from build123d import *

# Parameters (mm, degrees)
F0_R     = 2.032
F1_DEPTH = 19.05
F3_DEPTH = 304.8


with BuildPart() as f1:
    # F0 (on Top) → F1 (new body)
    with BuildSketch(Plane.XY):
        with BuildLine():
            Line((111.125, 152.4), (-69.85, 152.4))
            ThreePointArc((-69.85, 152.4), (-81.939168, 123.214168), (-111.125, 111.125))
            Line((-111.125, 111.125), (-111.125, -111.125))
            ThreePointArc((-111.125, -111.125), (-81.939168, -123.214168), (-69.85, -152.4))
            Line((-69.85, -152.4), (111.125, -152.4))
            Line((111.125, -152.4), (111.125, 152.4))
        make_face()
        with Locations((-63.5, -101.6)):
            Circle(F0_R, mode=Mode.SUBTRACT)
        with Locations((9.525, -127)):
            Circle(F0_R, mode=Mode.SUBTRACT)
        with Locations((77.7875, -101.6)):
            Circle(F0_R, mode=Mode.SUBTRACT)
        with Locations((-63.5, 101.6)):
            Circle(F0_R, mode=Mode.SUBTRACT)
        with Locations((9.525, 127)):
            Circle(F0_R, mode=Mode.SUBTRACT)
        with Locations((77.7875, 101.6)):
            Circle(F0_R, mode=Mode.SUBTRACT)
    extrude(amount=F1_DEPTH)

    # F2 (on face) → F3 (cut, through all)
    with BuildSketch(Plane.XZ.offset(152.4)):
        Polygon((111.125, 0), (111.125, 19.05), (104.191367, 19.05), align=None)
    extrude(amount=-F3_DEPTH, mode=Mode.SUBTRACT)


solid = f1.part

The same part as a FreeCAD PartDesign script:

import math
import FreeCAD as App
import Part
import Sketcher
Q = App.Units.Quantity


def add_polygon(sketch, points):
    """Adds a closed chain of lines whose ends are joined by coincident constraints."""
    first, n = sketch.GeometryCount, len(points)
    for a, b in zip(points, points[1:] + points[:1]):
        sketch.addGeometry(Part.LineSegment(App.Vector(*a, 0), App.Vector(*b, 0)), False)
    for i in range(n):
        sketch.addConstraint(Sketcher.Constraint("Coincident", first + i, 2, first + (i + 1) % n, 1))

doc = App.newDocument("Part")
body = doc.addObject("PartDesign::Body", "Body")

sketch1 = body.newObject("Sketcher::SketchObject", "Sketch")
sketch1.AttachmentSupport = (doc.getObject("XY_Plane"), [""])
sketch1.MapMode = "FlatFace"
sketch1.addGeometry([
    Part.LineSegment(App.Vector(111.1, 152.4, 0), App.Vector(-69.8, 152.4, 0)),
    Part.ArcOfCircle(Part.Circle(App.Vector(-111.1, 152.4, 0), App.Vector(0, 0, 1), 41.3), math.radians(-90), math.radians(0)),
    Part.LineSegment(App.Vector(-111.1, 111.1, 0), App.Vector(-111.1, -111.1, 0)),
    Part.ArcOfCircle(Part.Circle(App.Vector(-111.1, -152.4, 0), App.Vector(0, 0, 1), 41.3), math.radians(0), math.radians(90)),
    Part.LineSegment(App.Vector(-69.8, -152.4, 0), App.Vector(111.1, -152.4, 0)),
    Part.LineSegment(App.Vector(111.1, -152.4, 0), App.Vector(111.1, 152.4, 0)),
    Part.Circle(App.Vector(-63.5, -101.6, 0), App.Vector(0, 0, 1), 2),
    Part.Circle(App.Vector(9.5, -127, 0), App.Vector(0, 0, 1), 2),
    Part.Circle(App.Vector(77.8, -101.6, 0), App.Vector(0, 0, 1), 2),
    Part.Circle(App.Vector(-63.5, 101.6, 0), App.Vector(0, 0, 1), 2),
    Part.Circle(App.Vector(9.5, 127, 0), App.Vector(0, 0, 1), 2),
    Part.Circle(App.Vector(77.8, 101.6, 0), App.Vector(0, 0, 1), 2),
], False)
sketch1.addConstraint([
    Sketcher.Constraint("Coincident", 0, 2, 1, 2),
    Sketcher.Constraint("Coincident", 1, 1, 2, 1),
    Sketcher.Constraint("Coincident", 2, 2, 3, 2),
    Sketcher.Constraint("Coincident", 3, 1, 4, 1),
    Sketcher.Constraint("Coincident", 4, 2, 5, 1),
    Sketcher.Constraint("Coincident", 5, 2, 0, 1),
    Sketcher.Constraint("Horizontal", 0),
    Sketcher.Constraint("Vertical", 2),
    Sketcher.Constraint("Horizontal", 4),
    Sketcher.Constraint("Vertical", 5),
    Sketcher.Constraint("Equal", 1, 3),
    Sketcher.Constraint("Equal", 6, 7),
    Sketcher.Constraint("Equal", 7, 8),
    Sketcher.Constraint("Equal", 8, 9),
    Sketcher.Constraint("Equal", 9, 10),
    Sketcher.Constraint("Equal", 10, 11),
    Sketcher.Constraint("Symmetric", 1, 3, 3, 3, -1),
    Sketcher.Constraint("Symmetric", 6, 3, 9, 3, -1),
    Sketcher.Constraint("Symmetric", 7, 3, 10, 3, -1),
    Sketcher.Constraint("Symmetric", 8, 3, 11, 3, -1),
    Sketcher.Constraint("Horizontal", 6, 3, 8, 3),
    Sketcher.Constraint("Horizontal", 1, 3, 0, 2),
    Sketcher.Constraint("Vertical", 3, 3, 1, 1),
    Sketcher.Constraint("Diameter", 6, Q("0.16 in")),
    Sketcher.Constraint("DistanceY", 5, 1, 5, 2, Q("12 in")),
    Sketcher.Constraint("DistanceY", -1, 1, 1, 3, Q("6.0000001 in")),
    Sketcher.Constraint("DistanceY", 6, 3, -1, 1, Q("4 in")),
    Sketcher.Constraint("DistanceY", 7, 3, -1, 1, Q("5 in")),
    Sketcher.Constraint("Radius", 1, Q("1.6250001 in")),
    Sketcher.Constraint("DistanceX", 7, 3, 4, 2, Q("4 in")),
    Sketcher.Constraint("DistanceX", 6, 3, -1, 1, Q("2.5 in")),
    Sketcher.Constraint("DistanceX", 0, 2, 0, 1, Q("7.125 in")),
    Sketcher.Constraint("DistanceX", 0, 2, -1, 1, Q("2.75 in")),
    Sketcher.Constraint("DistanceX", -1, 1, 8, 3, Q("3.0625 in")),
])
pad1 = body.newObject("PartDesign::Pad", "Pad")
pad1.Profile = sketch1
pad1.Length = Q("0.75 in")

sketch2 = body.newObject("Sketcher::SketchObject", "Sketch001")
sketch2.AttachmentSupport = (doc.getObject("XZ_Plane"), [""])
sketch2.MapMode = "FlatFace"
sketch2.AttachmentOffset = App.Placement(App.Vector(0, 0, 6 * 25.4), App.Rotation())
add_polygon(sketch2, [(111, 0), (111, 19), (104, 19)])
sketch2.addConstraint([
    Sketcher.Constraint("Vertical", 0),
    Sketcher.Constraint("Horizontal", 1),
    Sketcher.Constraint("PointOnObject", 2, 2, -1),
    Sketcher.Constraint("Angle", 2, Q("-70 deg")),
    Sketcher.Constraint("DistanceY", 0, 1, 0, 2, Q("0.75 in")),
    Sketcher.Constraint("DistanceX", -1, 1, 0, 2, Q("4.375 in")),
])
pocket1 = body.newObject("PartDesign::Pocket", "Pocket")
pocket1.Profile = sketch2
pocket1.Type = "ThroughAll"

doc.recompute()
